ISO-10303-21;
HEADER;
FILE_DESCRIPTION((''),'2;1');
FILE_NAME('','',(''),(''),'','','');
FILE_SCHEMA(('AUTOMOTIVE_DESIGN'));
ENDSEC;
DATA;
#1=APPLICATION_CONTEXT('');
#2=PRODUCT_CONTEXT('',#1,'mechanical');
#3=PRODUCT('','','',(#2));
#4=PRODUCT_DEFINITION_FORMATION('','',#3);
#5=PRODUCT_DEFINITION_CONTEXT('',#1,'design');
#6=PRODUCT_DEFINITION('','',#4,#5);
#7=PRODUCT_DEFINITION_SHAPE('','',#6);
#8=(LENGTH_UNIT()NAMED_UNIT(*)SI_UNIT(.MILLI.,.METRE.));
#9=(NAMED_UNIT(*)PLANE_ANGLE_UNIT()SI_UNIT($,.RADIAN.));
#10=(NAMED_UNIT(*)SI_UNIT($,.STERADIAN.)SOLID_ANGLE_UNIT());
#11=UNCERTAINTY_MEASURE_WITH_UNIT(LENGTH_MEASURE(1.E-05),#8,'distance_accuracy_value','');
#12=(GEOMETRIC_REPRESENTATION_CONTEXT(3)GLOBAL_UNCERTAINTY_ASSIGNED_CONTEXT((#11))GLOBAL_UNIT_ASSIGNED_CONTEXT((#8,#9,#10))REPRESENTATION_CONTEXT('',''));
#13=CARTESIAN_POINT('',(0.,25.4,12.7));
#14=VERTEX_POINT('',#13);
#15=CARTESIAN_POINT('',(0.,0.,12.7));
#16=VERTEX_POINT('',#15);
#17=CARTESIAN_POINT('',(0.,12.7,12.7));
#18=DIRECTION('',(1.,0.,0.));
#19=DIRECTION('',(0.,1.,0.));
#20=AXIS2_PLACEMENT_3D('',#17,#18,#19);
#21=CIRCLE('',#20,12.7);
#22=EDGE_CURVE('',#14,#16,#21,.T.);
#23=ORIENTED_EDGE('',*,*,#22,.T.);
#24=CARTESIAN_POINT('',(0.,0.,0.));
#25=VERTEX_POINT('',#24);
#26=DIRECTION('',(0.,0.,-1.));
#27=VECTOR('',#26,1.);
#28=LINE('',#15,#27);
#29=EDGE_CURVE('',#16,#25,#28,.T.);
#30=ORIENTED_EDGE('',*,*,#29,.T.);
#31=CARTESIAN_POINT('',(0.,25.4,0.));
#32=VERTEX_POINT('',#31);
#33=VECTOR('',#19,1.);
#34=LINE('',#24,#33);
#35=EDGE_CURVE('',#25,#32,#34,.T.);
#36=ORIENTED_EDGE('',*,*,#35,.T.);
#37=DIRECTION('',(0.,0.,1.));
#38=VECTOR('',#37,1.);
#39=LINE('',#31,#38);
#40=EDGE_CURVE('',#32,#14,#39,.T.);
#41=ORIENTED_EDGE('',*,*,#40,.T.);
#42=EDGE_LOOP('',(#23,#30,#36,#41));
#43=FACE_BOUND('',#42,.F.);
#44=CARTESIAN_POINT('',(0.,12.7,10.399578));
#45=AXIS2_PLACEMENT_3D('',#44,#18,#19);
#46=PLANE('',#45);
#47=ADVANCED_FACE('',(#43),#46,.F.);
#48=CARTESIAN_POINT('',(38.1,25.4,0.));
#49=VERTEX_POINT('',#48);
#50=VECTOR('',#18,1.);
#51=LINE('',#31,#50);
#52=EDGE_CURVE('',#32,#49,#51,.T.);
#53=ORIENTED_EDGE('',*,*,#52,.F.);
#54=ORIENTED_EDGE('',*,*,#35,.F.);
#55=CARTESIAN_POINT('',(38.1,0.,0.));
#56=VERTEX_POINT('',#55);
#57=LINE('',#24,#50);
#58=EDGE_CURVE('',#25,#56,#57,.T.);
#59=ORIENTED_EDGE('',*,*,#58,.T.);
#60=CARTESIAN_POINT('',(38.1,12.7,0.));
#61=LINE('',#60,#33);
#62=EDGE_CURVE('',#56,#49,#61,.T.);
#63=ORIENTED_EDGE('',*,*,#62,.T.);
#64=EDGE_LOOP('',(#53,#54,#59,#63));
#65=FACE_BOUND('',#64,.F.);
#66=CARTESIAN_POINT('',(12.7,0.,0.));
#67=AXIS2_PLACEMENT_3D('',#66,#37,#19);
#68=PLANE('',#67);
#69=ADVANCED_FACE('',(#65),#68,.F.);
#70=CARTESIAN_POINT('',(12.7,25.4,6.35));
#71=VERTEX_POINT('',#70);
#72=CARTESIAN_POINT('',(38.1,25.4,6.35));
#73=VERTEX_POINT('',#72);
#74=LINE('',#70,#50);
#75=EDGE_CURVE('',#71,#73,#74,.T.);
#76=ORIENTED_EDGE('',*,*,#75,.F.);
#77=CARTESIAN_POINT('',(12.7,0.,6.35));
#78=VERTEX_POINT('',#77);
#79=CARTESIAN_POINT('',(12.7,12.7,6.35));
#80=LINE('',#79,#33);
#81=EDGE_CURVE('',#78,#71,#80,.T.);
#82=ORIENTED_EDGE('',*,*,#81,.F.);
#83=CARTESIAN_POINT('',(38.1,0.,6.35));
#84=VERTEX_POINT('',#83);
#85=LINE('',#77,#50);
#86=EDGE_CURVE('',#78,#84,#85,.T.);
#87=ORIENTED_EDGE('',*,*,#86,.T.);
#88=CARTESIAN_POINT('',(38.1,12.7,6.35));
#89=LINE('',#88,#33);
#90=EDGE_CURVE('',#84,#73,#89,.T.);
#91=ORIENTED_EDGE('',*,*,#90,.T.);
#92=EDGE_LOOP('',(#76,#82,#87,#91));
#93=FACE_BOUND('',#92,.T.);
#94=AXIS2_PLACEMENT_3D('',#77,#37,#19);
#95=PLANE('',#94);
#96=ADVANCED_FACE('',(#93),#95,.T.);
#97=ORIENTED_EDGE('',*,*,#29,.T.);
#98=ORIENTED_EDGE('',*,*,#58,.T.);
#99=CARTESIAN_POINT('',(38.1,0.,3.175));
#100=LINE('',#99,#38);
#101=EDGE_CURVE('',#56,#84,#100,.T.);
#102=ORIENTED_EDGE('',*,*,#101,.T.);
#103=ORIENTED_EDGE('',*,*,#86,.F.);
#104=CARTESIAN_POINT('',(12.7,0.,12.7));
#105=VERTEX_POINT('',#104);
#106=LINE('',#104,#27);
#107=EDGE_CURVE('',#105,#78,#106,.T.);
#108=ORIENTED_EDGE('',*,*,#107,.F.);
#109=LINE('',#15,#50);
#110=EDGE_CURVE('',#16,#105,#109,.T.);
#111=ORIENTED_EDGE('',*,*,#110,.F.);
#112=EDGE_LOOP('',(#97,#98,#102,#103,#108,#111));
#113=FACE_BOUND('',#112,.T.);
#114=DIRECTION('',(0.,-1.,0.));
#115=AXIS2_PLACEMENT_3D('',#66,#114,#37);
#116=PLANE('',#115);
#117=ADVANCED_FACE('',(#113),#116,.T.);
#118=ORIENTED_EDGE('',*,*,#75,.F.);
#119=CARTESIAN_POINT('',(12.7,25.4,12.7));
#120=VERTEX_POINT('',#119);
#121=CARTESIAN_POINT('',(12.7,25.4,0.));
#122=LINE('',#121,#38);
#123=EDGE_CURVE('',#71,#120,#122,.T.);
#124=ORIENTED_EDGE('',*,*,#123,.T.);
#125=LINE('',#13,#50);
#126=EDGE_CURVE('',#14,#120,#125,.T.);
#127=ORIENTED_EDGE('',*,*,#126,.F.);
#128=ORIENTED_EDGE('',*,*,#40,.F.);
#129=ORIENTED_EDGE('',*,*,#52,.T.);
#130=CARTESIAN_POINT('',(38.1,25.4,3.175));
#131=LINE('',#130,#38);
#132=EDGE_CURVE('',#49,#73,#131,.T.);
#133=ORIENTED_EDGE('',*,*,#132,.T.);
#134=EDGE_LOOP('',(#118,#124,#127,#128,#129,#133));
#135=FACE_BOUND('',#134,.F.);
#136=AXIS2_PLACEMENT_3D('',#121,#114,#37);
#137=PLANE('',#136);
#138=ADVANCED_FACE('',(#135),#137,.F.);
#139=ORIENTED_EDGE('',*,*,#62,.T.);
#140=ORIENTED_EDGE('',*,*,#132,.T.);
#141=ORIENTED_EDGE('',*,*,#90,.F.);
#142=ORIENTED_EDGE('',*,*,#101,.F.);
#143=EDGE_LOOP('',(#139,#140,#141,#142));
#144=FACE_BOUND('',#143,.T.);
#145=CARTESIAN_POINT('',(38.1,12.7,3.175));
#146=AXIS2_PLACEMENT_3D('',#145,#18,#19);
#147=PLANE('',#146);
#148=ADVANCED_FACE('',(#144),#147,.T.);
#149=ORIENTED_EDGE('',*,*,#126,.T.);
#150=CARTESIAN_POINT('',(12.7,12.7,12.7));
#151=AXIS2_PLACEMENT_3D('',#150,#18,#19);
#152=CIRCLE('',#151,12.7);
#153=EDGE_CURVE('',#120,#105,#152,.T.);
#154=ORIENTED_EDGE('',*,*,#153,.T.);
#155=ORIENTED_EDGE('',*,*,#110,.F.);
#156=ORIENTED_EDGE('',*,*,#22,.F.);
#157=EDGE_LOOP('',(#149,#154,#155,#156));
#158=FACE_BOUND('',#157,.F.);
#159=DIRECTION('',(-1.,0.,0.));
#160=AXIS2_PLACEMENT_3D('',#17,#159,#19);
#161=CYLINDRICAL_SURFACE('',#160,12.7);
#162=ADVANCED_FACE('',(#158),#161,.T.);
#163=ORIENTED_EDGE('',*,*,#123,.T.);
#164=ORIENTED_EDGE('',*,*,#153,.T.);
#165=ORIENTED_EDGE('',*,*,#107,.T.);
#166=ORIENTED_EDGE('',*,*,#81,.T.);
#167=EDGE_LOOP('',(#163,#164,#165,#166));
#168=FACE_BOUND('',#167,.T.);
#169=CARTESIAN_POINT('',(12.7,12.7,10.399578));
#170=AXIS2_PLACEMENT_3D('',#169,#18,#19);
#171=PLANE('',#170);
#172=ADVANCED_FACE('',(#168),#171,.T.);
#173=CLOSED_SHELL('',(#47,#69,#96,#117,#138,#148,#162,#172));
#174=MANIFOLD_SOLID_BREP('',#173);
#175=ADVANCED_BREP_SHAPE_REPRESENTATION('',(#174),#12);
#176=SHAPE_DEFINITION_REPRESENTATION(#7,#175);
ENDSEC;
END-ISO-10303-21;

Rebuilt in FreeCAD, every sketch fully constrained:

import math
import FreeCAD as App
import Part
import Sketcher
Q = App.Units.Quantity


def add_polygon(sketch, points):
    """Adds a closed chain of lines whose ends are joined by coincident constraints."""
    first, n = sketch.GeometryCount, len(points)
    for a, b in zip(points, points[1:] + points[:1]):
        sketch.addGeometry(Part.LineSegment(App.Vector(*a, 0), App.Vector(*b, 0)), False)
    for i in range(n):
        sketch.addConstraint(Sketcher.Constraint("Coincident", first + i, 2, first + (i + 1) % n, 1))

doc = App.newDocument("Part")
body = doc.addObject("PartDesign::Body", "Body")

# Sketch on YZ plane
sketch1 = doc.addObject("Sketcher::SketchObject", "Sketch")
body.addObject(sketch1)
sketch1.AttachmentSupport = (doc.YZ_Plane, [""])
sketch1.MapMode = "FlatFace"
sketch1.addGeometry([
    Part.LineSegment(App.Vector(0, 13, 0), App.Vector(0, 0, 0)),
    Part.LineSegment(App.Vector(0, 0, 0), App.Vector(25, 0, 0)),
    Part.LineSegment(App.Vector(25, 0, 0), App.Vector(25, 13, 0)),
    Part.ArcOfCircle(Part.Circle(App.Vector(13, 13, 0), App.Vector(0, 0, 1), 13), math.radians(0), math.radians(180)),
], False)
sketch1.addConstraint([
    Sketcher.Constraint("Coincident", 0, 2, 1, 1),
    Sketcher.Constraint("Coincident", 1, 2, 2, 1),
    Sketcher.Constraint("Tangent", 2, 2, 3, 1),
    Sketcher.Constraint("Tangent", 3, 2, 0, 1),
    Sketcher.Constraint("Vertical", 0),
    Sketcher.Constraint("Horizontal", 1),
    Sketcher.Constraint("Vertical", 2),
    Sketcher.Constraint("Coincident", 0, 2, -1, 1),
    Sketcher.Constraint("Radius", 3, Q("0.5 in")),
    Sketcher.Constraint("DistanceY", 0, 2, 0, 1, Q("0.5 in")),
])
pad1 = doc.addObject("PartDesign::Pad", "Pad")
body.addObject(pad1)
pad1.Profile = sketch1
pad1.Length = Q("0.5 in")

# Sketch on YZ plane
sketch2 = doc.addObject("Sketcher::SketchObject", "Sketch001")
body.addObject(sketch2)
sketch2.AttachmentSupport = (doc.YZ_Plane, [""])
sketch2.MapMode = "FlatFace"
sketch2.AttachmentOffset = App.Placement(App.Vector(0, 0, 0.5 * 25.4), App.Rotation())
add_polygon(sketch2, [(0, 6), (0, 0), (25, 0), (25, 6)])  # lines 0-3
sketch2.addConstraint([
    Sketcher.Constraint("Vertical", 0),
    Sketcher.Constraint("Horizontal", 1),
    Sketcher.Constraint("Vertical", 2),
    Sketcher.Constraint("Horizontal", 3),
    Sketcher.Constraint("Coincident", 0, 2, -1, 1),
    Sketcher.Constraint("DistanceX", 1, 1, 1, 2, Q("1 in")),
    Sketcher.Constraint("DistanceY", 0, 2, 0, 1, Q("0.25 in")),
])
pad2 = doc.addObject("PartDesign::Pad", "Pad001")
body.addObject(pad2)
pad2.Profile = sketch2
pad2.Length = Q("1 in")

doc.recompute()
